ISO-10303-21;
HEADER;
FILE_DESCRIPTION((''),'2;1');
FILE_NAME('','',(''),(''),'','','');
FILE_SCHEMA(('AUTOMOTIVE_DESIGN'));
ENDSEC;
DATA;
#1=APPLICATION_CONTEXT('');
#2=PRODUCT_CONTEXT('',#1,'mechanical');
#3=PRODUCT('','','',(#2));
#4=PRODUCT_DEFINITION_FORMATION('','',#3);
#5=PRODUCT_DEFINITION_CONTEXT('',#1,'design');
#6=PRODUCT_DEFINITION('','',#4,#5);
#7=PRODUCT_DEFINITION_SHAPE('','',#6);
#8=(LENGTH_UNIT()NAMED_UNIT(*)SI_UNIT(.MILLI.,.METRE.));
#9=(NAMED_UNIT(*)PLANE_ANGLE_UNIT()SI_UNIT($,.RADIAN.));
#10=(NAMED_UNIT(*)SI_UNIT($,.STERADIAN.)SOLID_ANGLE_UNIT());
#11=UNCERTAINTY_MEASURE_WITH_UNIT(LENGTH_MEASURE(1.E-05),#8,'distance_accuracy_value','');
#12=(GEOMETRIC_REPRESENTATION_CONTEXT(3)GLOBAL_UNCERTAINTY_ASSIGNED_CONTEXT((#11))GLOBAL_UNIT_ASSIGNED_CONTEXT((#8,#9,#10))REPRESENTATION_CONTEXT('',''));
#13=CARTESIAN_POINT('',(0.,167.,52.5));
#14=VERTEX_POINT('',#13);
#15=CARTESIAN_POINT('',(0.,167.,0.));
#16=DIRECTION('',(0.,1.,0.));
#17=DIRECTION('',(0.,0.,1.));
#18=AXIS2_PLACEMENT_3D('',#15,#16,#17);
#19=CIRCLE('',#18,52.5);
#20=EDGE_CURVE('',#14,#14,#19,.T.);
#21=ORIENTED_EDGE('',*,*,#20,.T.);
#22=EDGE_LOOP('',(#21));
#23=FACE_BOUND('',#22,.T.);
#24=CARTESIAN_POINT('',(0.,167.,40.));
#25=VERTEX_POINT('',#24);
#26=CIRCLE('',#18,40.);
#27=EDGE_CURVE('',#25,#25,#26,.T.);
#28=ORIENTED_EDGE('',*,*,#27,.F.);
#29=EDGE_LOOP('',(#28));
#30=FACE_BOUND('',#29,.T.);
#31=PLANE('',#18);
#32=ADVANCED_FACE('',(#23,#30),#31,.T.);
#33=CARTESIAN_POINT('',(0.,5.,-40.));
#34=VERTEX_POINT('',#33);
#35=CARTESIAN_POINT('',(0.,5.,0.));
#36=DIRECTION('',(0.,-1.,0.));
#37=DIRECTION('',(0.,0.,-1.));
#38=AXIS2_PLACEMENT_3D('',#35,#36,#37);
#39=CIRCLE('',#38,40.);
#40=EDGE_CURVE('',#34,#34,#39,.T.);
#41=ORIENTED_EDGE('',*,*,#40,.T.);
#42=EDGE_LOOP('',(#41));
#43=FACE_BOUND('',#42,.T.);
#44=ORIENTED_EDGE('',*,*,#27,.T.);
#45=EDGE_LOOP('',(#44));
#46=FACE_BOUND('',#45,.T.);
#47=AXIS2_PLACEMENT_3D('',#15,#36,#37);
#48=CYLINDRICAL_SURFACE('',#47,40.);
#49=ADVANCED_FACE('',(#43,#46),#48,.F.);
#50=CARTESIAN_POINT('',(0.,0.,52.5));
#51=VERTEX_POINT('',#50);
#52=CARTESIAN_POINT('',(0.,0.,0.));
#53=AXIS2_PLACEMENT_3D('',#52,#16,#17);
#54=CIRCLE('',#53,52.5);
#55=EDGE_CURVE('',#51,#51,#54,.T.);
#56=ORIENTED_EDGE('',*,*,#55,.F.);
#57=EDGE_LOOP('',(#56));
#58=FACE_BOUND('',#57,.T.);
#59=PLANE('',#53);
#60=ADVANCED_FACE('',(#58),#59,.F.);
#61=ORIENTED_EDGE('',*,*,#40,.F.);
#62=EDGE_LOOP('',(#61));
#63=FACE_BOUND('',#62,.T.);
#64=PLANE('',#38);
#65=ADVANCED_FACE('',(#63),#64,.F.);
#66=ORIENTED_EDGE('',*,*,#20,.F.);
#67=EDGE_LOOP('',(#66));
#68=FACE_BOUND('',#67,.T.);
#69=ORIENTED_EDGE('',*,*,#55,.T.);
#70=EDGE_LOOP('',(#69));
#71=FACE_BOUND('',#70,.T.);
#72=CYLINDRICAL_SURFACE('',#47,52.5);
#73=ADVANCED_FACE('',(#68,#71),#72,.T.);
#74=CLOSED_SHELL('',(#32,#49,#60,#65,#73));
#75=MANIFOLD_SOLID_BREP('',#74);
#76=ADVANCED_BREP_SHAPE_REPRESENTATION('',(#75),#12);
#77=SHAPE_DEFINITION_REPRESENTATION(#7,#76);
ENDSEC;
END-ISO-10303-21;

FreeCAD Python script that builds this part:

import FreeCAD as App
import Part
import Sketcher

V = App.Vector

doc = App.newDocument("Part")
params = doc.addObject("Spreadsheet::Sheet", "Params")
for row, (alias, value) in enumerate([
    ("sketch1_diameter", "105 mm"),
    ("sketch1_diameter2", "80 mm"),
    ("pad1_length", "167 mm"),
    ("sketch2_diameter", "105 mm"),
    ("pad2_length", "5 mm"),
], start=1):
    params.set(f"A{row}", alias)
    params.set(f"B{row}", "=" + value)
    params.setAlias(f"B{row}", alias)

body = doc.addObject("PartDesign::Body", "Body")

# Sketch on XZ plane
sketch1 = body.newObject("Sketcher::SketchObject", "Sketch")
sketch1.AttachmentSupport = (doc.getObject("XZ_Plane"), [""])
sketch1.MapMode = "FlatFace"
sketch1.addGeometry(Part.Circle(V(0, 0, 0), V(0, 0, 1), 52.5), False)
sketch1.addGeometry(Part.Circle(V(0, 0, 0), V(0, 0, 1), 40), False)
sketch1.addConstraint(Sketcher.Constraint("Coincident", 0, 3, -1, 1))
sketch1.addConstraint(Sketcher.Constraint("Coincident", 1, 3, -1, 1))
sketch1.addConstraint(Sketcher.Constraint("Diameter", 0, 105.0))
sketch1.addConstraint(Sketcher.Constraint("Diameter", 1, 80.0))
sketch1.setExpression("Constraints[2]", "Params.sketch1_diameter")
sketch1.setExpression("Constraints[3]", "Params.sketch1_diameter2")
pad1 = body.newObject("PartDesign::Pad", "Pad")
pad1.Profile = sketch1
pad1.setExpression("Length", "Params.pad1_length")
pad1.Reversed = True

# Sketch on XZ plane
sketch2 = body.newObject("Sketcher::SketchObject", "Sketch001")
sketch2.AttachmentSupport = (doc.getObject("XZ_Plane"), [""])
sketch2.MapMode = "FlatFace"
sketch2.addGeometry(Part.Circle(V(0, 0, 0), V(0, 0, 1), 52.5), False)
sketch2.addConstraint(Sketcher.Constraint("Coincident", 0, 3, -1, 1))
sketch2.addConstraint(Sketcher.Constraint("Diameter", 0, 105.0))
sketch2.setExpression("Constraints[1]", "Params.sketch2_diameter")
pad2 = body.newObject("PartDesign::Pad", "Pad001")
pad2.Profile = sketch2
pad2.setExpression("Length", "Params.pad2_length")
pad2.Reversed = True

doc.recompute()
